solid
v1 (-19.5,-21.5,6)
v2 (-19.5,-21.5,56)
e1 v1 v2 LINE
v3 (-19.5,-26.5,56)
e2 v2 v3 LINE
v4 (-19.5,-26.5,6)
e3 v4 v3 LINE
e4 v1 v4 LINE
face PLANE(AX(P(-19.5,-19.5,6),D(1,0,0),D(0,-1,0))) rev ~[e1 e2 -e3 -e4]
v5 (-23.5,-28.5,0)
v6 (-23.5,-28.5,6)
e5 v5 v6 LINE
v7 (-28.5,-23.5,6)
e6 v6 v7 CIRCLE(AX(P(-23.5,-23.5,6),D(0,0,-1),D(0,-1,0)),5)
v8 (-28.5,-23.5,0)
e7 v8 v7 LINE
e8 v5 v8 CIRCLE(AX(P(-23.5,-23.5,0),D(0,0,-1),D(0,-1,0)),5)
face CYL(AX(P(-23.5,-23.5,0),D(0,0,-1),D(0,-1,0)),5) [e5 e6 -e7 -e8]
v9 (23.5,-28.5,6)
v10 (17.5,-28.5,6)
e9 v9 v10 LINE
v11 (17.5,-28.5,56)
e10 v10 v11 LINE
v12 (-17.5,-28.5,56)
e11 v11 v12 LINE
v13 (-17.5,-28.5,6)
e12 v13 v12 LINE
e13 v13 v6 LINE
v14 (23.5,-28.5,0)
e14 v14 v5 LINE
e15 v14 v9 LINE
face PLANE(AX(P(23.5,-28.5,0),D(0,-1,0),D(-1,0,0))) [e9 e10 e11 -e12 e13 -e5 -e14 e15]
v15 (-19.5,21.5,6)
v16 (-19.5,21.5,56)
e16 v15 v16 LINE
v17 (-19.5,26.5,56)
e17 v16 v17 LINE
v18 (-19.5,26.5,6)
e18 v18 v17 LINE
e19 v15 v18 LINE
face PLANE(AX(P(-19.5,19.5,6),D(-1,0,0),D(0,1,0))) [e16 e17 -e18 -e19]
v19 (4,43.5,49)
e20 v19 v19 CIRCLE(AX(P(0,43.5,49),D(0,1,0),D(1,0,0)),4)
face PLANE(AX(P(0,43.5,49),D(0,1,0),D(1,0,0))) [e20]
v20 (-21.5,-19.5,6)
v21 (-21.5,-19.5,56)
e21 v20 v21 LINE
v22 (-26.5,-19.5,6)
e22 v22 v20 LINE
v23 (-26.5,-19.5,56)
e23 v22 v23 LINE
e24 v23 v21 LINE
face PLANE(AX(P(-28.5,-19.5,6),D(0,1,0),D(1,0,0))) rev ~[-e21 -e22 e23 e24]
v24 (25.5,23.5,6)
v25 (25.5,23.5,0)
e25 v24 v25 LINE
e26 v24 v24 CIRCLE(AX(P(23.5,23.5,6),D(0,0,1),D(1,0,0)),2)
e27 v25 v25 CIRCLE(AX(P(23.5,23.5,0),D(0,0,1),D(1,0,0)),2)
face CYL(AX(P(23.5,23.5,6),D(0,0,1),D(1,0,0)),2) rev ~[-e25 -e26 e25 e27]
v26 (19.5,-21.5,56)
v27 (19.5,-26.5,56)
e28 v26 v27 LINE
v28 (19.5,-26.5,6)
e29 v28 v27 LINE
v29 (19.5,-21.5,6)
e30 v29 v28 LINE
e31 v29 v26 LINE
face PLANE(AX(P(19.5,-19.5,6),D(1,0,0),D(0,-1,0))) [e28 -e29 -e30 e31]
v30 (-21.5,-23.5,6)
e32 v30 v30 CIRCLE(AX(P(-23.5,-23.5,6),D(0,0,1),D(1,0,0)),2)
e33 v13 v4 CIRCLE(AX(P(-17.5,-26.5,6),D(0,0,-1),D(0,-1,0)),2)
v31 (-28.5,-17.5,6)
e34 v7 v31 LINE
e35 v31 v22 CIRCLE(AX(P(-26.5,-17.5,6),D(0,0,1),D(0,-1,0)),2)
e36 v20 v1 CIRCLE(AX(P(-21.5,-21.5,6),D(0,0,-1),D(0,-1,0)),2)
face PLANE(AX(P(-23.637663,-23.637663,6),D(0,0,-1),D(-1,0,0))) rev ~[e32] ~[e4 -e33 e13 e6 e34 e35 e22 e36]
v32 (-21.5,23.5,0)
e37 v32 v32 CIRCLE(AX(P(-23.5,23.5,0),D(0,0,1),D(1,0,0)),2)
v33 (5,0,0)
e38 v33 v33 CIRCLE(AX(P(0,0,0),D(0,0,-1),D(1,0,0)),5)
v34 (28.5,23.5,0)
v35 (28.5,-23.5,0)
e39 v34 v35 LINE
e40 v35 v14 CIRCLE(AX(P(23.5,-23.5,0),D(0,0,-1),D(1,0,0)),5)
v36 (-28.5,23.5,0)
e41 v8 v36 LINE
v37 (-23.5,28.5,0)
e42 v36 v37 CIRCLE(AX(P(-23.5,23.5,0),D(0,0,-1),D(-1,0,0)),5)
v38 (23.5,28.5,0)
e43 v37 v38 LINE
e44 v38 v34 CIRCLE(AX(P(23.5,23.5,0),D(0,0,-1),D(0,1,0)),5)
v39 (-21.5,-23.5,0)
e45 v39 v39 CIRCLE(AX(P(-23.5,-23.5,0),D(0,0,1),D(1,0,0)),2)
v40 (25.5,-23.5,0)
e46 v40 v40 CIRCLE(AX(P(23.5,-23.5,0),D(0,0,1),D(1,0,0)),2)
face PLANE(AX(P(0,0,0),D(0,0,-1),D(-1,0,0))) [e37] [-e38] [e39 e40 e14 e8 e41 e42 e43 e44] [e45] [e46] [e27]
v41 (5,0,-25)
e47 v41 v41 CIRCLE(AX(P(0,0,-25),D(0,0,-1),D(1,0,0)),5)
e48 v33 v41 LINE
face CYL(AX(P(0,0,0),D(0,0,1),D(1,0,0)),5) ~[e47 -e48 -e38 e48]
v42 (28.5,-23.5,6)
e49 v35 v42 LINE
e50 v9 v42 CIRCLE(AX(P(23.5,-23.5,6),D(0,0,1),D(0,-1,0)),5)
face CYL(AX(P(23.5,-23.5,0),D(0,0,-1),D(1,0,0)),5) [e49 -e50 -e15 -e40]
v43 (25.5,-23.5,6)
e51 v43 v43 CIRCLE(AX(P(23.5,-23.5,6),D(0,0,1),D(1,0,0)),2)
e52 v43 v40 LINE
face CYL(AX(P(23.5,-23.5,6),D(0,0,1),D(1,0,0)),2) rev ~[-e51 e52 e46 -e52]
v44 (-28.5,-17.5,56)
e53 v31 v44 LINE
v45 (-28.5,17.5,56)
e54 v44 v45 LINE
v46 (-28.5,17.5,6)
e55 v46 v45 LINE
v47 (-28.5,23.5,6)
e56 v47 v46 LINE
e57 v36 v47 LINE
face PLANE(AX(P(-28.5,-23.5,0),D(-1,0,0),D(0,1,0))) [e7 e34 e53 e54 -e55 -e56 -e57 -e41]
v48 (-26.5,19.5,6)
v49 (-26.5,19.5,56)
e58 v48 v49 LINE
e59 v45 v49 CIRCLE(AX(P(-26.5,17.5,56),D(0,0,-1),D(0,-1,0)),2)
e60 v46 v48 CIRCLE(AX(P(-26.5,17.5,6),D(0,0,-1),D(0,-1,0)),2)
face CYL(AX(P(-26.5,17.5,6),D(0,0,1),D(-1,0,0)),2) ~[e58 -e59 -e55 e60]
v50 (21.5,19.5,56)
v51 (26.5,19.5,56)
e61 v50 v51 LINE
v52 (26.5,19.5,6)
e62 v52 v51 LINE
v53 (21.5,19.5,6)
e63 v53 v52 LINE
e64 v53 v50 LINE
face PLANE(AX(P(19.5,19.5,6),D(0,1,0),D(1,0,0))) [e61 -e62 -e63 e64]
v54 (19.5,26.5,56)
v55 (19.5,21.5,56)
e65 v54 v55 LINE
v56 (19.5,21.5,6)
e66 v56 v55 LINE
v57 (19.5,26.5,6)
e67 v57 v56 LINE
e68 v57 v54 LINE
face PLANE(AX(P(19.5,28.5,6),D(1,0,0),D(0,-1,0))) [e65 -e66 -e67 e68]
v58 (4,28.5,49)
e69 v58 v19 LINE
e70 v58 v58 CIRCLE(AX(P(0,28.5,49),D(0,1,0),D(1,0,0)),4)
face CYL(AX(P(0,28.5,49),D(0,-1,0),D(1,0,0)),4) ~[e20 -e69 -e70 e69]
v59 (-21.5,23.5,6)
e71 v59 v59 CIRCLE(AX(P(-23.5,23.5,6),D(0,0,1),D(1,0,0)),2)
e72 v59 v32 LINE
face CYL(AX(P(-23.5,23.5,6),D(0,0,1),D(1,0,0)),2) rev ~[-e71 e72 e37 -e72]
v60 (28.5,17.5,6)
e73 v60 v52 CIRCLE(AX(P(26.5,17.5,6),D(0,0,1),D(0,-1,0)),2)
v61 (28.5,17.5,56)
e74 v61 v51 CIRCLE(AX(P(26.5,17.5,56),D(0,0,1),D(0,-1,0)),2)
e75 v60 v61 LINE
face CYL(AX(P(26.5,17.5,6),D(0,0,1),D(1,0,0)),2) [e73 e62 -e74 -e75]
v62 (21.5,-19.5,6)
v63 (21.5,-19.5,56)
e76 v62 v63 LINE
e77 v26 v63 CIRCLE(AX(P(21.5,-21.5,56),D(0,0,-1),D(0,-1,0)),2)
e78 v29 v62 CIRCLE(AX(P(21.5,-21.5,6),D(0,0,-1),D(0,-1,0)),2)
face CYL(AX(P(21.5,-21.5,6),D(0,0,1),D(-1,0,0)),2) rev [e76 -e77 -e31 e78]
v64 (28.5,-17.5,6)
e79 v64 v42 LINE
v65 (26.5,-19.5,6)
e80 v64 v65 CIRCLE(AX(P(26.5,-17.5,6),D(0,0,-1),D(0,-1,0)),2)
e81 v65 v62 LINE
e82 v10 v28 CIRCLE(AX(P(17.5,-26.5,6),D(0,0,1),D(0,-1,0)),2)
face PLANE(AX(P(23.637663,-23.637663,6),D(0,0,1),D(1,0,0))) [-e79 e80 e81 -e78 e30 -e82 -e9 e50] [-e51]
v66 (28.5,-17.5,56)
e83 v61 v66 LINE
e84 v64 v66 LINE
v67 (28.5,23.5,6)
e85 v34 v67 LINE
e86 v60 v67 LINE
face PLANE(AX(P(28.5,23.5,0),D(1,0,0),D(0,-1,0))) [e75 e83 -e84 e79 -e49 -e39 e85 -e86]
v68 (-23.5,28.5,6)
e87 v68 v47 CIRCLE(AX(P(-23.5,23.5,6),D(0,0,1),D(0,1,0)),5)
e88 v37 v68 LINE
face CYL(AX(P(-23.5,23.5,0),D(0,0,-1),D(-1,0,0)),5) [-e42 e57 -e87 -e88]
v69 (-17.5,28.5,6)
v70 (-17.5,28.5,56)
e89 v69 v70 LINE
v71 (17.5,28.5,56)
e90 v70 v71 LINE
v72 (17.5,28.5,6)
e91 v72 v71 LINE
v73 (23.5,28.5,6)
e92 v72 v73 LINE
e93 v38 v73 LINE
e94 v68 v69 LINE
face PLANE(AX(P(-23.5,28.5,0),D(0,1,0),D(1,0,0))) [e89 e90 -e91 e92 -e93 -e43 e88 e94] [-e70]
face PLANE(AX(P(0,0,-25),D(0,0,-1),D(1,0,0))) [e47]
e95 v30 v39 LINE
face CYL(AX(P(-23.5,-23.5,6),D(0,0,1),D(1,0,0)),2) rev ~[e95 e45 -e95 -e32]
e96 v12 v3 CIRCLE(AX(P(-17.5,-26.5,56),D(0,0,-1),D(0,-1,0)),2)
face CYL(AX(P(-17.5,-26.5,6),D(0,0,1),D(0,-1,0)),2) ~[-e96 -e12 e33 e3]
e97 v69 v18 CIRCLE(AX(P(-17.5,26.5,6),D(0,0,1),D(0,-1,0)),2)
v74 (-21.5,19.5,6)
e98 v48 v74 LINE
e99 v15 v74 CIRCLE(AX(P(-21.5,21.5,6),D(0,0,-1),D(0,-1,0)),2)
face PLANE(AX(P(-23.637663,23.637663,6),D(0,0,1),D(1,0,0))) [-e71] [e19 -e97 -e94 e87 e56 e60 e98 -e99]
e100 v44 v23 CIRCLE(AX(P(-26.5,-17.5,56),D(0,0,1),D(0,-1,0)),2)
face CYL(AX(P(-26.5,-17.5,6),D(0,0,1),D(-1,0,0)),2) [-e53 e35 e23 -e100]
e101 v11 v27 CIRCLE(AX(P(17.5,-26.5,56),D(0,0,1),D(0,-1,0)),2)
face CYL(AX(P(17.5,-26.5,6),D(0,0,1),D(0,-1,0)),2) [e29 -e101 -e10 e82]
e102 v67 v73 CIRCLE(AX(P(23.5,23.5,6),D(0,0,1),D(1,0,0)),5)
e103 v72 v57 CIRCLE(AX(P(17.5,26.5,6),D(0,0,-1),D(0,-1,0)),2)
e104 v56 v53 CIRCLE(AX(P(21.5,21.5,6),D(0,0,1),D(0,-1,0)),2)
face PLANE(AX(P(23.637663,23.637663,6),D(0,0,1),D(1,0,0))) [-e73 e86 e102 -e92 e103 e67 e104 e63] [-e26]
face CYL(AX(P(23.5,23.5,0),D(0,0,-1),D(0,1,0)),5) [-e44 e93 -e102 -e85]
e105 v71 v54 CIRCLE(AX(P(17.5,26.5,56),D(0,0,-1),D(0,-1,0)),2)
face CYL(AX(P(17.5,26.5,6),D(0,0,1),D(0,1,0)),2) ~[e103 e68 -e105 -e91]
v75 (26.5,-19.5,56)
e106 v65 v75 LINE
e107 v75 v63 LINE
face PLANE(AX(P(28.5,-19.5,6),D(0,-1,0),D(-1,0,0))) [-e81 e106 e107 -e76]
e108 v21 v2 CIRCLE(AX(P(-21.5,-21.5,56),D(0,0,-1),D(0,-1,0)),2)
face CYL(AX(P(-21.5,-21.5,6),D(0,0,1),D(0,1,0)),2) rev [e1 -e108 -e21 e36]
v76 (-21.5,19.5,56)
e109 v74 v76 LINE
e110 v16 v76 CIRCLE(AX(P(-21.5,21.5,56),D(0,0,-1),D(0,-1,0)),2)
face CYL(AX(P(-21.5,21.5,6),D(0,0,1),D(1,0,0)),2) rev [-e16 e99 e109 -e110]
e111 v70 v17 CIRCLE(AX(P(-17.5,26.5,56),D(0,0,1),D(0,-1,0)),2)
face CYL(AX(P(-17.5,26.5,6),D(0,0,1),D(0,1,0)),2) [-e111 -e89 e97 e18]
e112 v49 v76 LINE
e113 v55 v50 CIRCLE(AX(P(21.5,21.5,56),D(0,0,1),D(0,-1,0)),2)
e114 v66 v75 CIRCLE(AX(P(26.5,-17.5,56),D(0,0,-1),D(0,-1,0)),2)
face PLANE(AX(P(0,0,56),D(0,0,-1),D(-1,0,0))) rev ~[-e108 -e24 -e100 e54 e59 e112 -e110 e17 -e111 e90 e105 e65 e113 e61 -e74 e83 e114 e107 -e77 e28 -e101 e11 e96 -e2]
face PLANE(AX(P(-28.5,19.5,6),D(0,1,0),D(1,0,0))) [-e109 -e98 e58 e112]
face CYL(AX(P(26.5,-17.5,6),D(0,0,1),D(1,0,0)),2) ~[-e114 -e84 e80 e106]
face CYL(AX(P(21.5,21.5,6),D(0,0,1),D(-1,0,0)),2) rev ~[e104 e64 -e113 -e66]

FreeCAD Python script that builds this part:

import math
import FreeCAD as App
import Part
import Sketcher
from FreeCAD import Vector


def edges_at(feature, points):
    """Names of the edges that pass closest to the given points."""
    edges = feature.Shape.Edges
    near = lambda p: min(range(len(edges)), key=lambda i: edges[i].distToShape(Part.Vertex(*p))[0])
    return sorted({f"Edge{near(p) + 1}" for p in points})

doc = App.newDocument("Part")
body = doc.addObject("PartDesign::Body", "Body")

# Sketch on XY plane
sketch1 = body.newObject("Sketcher::SketchObject", "Sketch")
sketch1.AttachmentSupport = (doc.getObject("XY_Plane"), [""])
sketch1.MapMode = "FlatFace"
sketch1.addGeometry(Part.LineSegment(Vector(24, 28, 0), Vector(-24, 28, 0)), False)
sketch1.addGeometry(Part.ArcOfCircle(Part.Circle(Vector(-24, 24, 0), Vector(0, 0, 1), 5), math.radians(90), math.radians(180)), False)
sketch1.addGeometry(Part.LineSegment(Vector(-28, 24, 0), Vector(-28, -24, 0)), False)
sketch1.addGeometry(Part.ArcOfCircle(Part.Circle(Vector(-24, -24, 0), Vector(0, 0, 1), 5), math.radians(180), math.radians(270)), False)
sketch1.addGeometry(Part.LineSegment(Vector(-24, -28, 0), Vector(24, -28, 0)), False)
sketch1.addGeometry(Part.ArcOfCircle(Part.Circle(Vector(24, -24, 0), Vector(0, 0, 1), 5), math.radians(-90), math.radians(0)), False)
sketch1.addGeometry(Part.LineSegment(Vector(28, -24, 0), Vector(28, 24, 0)), False)
sketch1.addGeometry(Part.ArcOfCircle(Part.Circle(Vector(24, 24, 0), Vector(0, 0, 1), 5), math.radians(0), math.radians(90)), False)
sketch1.addConstraint(Sketcher.Constraint("Tangent", 0, 2, 1, 1))
sketch1.addConstraint(Sketcher.Constraint("Tangent", 1, 2, 2, 1))
sketch1.addConstraint(Sketcher.Constraint("Tangent", 2, 2, 3, 1))
sketch1.addConstraint(Sketcher.Constraint("Tangent", 3, 2, 4, 1))
sketch1.addConstraint(Sketcher.Constraint("Tangent", 4, 2, 5, 1))
sketch1.addConstraint(Sketcher.Constraint("Tangent", 5, 2, 6, 1))
sketch1.addConstraint(Sketcher.Constraint("Tangent", 6, 2, 7, 1))
sketch1.addConstraint(Sketcher.Constraint("Tangent", 7, 2, 0, 1))
sketch1.addConstraint(Sketcher.Constraint("Horizontal", 0))
sketch1.addConstraint(Sketcher.Constraint("Vertical", 2))
sketch1.addConstraint(Sketcher.Constraint("Horizontal", 4))
sketch1.addConstraint(Sketcher.Constraint("Vertical", 6))
sketch1.addConstraint(Sketcher.Constraint("Equal", 1, 3))
sketch1.addConstraint(Sketcher.Constraint("Equal", 3, 5))
sketch1.addConstraint(Sketcher.Constraint("Equal", 5, 7))
sketch1.addConstraint(Sketcher.Constraint("Symmetric", 1, 3, 5, 3, -1, 1))
sketch1.addConstraint(Sketcher.Constraint("Equal", 4, 2))
sketch1.addConstraint(Sketcher.Constraint("Radius", 1, 5.0))
sketch1.addConstraint(Sketcher.Constraint("DistanceX", 0, 2, 0, 1, 47.0))
pad1 = body.newObject("PartDesign::Pad", "Pad")
pad1.Profile = sketch1
pad1.Length = 56

# Sketch on XY plane
sketch2 = body.newObject("Sketcher::SketchObject", "Sketch001")
sketch2.AttachmentSupport = (doc.getObject("XY_Plane"), [""])
sketch2.MapMode = "FlatFace"
sketch2.AttachmentOffset = App.Placement(Vector(0, 0, 6), App.Rotation())
sketch2.addGeometry(Part.LineSegment(Vector(-19.5, -19.5, 0), Vector(-28.5, -19.5, 0)), False)
sketch2.addGeometry(Part.LineSegment(Vector(-28.5, -19.5, 0), Vector(-28.5, -23.5, 0)), False)
sketch2.addGeometry(Part.ArcOfCircle(Part.Circle(Vector(-23.5, -23.5, 0), Vector(0, 0, 1), 5), math.radians(180), math.radians(270)), False)
sketch2.addGeometry(Part.LineSegment(Vector(-23.5, -28.5, 0), Vector(-19.5, -28.5, 0)), False)
sketch2.addGeometry(Part.LineSegment(Vector(-19.5, -28.5, 0), Vector(-19.5, -19.5, 0)), False)
sketch2.addGeometry(Part.LineSegment(Vector(-28.5, 19.5, 0), Vector(-19.5, 19.5, 0)), False)
sketch2.addGeometry(Part.LineSegment(Vector(-19.5, 19.5, 0), Vector(-19.5, 28.5, 0)), False)
sketch2.addGeometry(Part.LineSegment(Vector(-19.5, 28.5, 0), Vector(-23.5, 28.5, 0)), False)
sketch2.addGeometry(Part.ArcOfCircle(Part.Circle(Vector(-23.5, 23.5, 0), Vector(0, 0, 1), 5), math.radians(90), math.radians(180)), False)
sketch2.addGeometry(Part.LineSegment(Vector(-28.5, 23.5, 0), Vector(-28.5, 19.5, 0)), False)
sketch2.addGeometry(Part.LineSegment(Vector(23.5, 28.5, 0), Vector(19.5, 28.5, 0)), False)
sketch2.addGeometry(Part.LineSegment(Vector(19.5, 28.5, 0), Vector(19.5, 19.5, 0)), False)
sketch2.addGeometry(Part.LineSegment(Vector(19.5, 19.5, 0), Vector(28.5, 19.5, 0)), False)
sketch2.addGeometry(Part.LineSegment(Vector(28.5, 19.5, 0), Vector(28.5, 23.5, 0)), False)
sketch2.addGeometry(Part.ArcOfCircle(Part.Circle(Vector(23.5, 23.5, 0), Vector(0, 0, 1), 5), math.radians(0), math.radians(90)), False)
sketch2.addGeometry(Part.LineSegment(Vector(28.5, -23.5, 0), Vector(28.5, -19.5, 0)), False)
sketch2.addGeometry(Part.LineSegment(Vector(28.5, -19.5, 0), Vector(19.5, -19.5, 0)), False)
sketch2.addGeometry(Part.LineSegment(Vector(19.5, -19.5, 0), Vector(19.5, -28.5, 0)), False)
sketch2.addGeometry(Part.LineSegment(Vector(19.5, -28.5, 0), Vector(23.5, -28.5, 0)), False)
sketch2.addGeometry(Part.ArcOfCircle(Part.Circle(Vector(23.5, -23.5, 0), Vector(0, 0, 1), 5), math.radians(-90), math.radians(0)), False)
sketch2.addConstraint(Sketcher.Constraint("Coincident", 0, 2, 1, 1))
sketch2.addConstraint(Sketcher.Constraint("Tangent", 1, 2, 2, 1))
sketch2.addConstraint(Sketcher.Constraint("Tangent", 2, 2, 3, 1))
sketch2.addConstraint(Sketcher.Constraint("Coincident", 3, 2, 4, 1))
sketch2.addConstraint(Sketcher.Constraint("Coincident", 4, 2, 0, 1))
sketch2.addConstraint(Sketcher.Constraint("Coincident", 5, 2, 6, 1))
sketch2.addConstraint(Sketcher.Constraint("Coincident", 6, 2, 7, 1))
sketch2.addConstraint(Sketcher.Constraint("Tangent", 7, 2, 8, 1))
sketch2.addConstraint(Sketcher.Constraint("Tangent", 8, 2, 9, 1))
sketch2.addConstraint(Sketcher.Constraint("Coincident", 9, 2, 5, 1))
sketch2.addConstraint(Sketcher.Constraint("Coincident", 10, 2, 11, 1))
sketch2.addConstraint(Sketcher.Constraint("Coincident", 11, 2, 12, 1))
sketch2.addConstraint(Sketcher.Constraint("Coincident", 12, 2, 13, 1))
sketch2.addConstraint(Sketcher.Constraint("Tangent", 13, 2, 14, 1))
sketch2.addConstraint(Sketcher.Constraint("Tangent", 14, 2, 10, 1))
sketch2.addConstraint(Sketcher.Constraint("Coincident", 15, 2, 16, 1))
sketch2.addConstraint(Sketcher.Constraint("Coincident", 16, 2, 17, 1))
sketch2.addConstraint(Sketcher.Constraint("Coincident", 17, 2, 18, 1))
sketch2.addConstraint(Sketcher.Constraint("Tangent", 18, 2, 19, 1))
sketch2.addConstraint(Sketcher.Constraint("Tangent", 19, 2, 15, 1))
sketch2.addConstraint(Sketcher.Constraint("Horizontal", 0))
sketch2.addConstraint(Sketcher.Constraint("Vertical", 1))
sketch2.addConstraint(Sketcher.Constraint("Horizontal", 3))
sketch2.addConstraint(Sketcher.Constraint("Vertical", 4))
sketch2.addConstraint(Sketcher.Constraint("Horizontal", 5))
sketch2.addConstraint(Sketcher.Constraint("Vertical", 6))
sketch2.addConstraint(Sketcher.Constraint("Horizontal", 7))
sketch2.addConstraint(Sketcher.Constraint("Vertical", 9))
sketch2.addConstraint(Sketcher.Constraint("Horizontal", 10))
sketch2.addConstraint(Sketcher.Constraint("Vertical", 11))
sketch2.addConstraint(Sketcher.Constraint("Horizontal", 12))
sketch2.addConstraint(Sketcher.Constraint("Vertical", 13))
sketch2.addConstraint(Sketcher.Constraint("Vertical", 15))
sketch2.addConstraint(Sketcher.Constraint("Horizontal", 16))
sketch2.addConstraint(Sketcher.Constraint("Vertical", 17))
sketch2.addConstraint(Sketcher.Constraint("Horizontal", 18))
sketch2.addConstraint(Sketcher.Constraint("Equal", 2, 8))
sketch2.addConstraint(Sketcher.Constraint("Equal", 8, 14))
sketch2.addConstraint(Sketcher.Constraint("Equal", 14, 19))
sketch2.addConstraint(Sketcher.Constraint("Symmetric", 2, 3, 14, 3, -1, 1))
sketch2.addConstraint(Sketcher.Constraint("Symmetric", 8, 3, 19, 3, -1, 1))
sketch2.addConstraint(Sketcher.Constraint("Symmetric", 4, 2, 11, 2, -1, 1))
sketch2.addConstraint(Sketcher.Constraint("Symmetric", 5, 2, 16, 2, -1, 1))
sketch2.addConstraint(Sketcher.Constraint("Symmetric", 8, 3, 14, 3, -2))
sketch2.addConstraint(Sketcher.Constraint("Symmetric", 5, 2, 11, 2, -2))
sketch2.addConstraint(Sketcher.Constraint("Equal", 18, 1))
sketch2.addConstraint(Sketcher.Constraint("Radius", 2, 5.0))
sketch2.addConstraint(Sketcher.Constraint("DistanceX", 0, 2, 0, 1, 9.0))
sketch2.addConstraint(Sketcher.Constraint("DistanceY", 2, 3, 8, 3, 47.0))
sketch2.addConstraint(Sketcher.Constraint("DistanceX", 8, 3, 14, 3, 47.0))
pocket1 = body.newObject("PartDesign::Pocket", "Pocket")
pocket1.Profile = sketch2
pocket1.Length = 50
pocket1.Reversed = True
doc.recompute()

fillet = body.newObject("PartDesign::Fillet", "Fillet")
fillet.Base = (pocket1, edges_at(pocket1, [
    (19.5, -28.5, 31),
    (19.5, -19.5, 31),
    (28.5, -19.5, 31),
    (-19.5, 28.5, 31),
    (-19.5, 19.5, 31),
    (-28.5, 19.5, 31),
    (28.5, 19.5, 31),
    (19.5, 19.5, 31),
    (19.5, 28.5, 31),
    (-28.5, -19.5, 31),
    (-19.5, -19.5, 31),
    (-19.5, -28.5, 31),
]))
fillet.Radius = 2

# Sketch on XY plane
sketch3 = body.newObject("Sketcher::SketchObject", "Sketch002")
sketch3.AttachmentSupport = (doc.getObject("XY_Plane"), [""])
sketch3.MapMode = "FlatFace"
sketch3.AttachmentOffset = App.Placement(Vector(0, 0, 6), App.Rotation())
sketch3.addGeometry(Part.Circle(Vector(-23.5, -23.5, 0), Vector(0, 0, 1), 2), False)
sketch3.addGeometry(Part.Circle(Vector(-23.5, 23.5, 0), Vector(0, 0, 1), 2), False)
sketch3.addGeometry(Part.Circle(Vector(23.5, 23.5, 0), Vector(0, 0, 1), 2), False)
sketch3.addGeometry(Part.Circle(Vector(23.5, -23.5, 0), Vector(0, 0, 1), 2), False)
sketch3.addConstraint(Sketcher.Constraint("Equal", 0, 1))
sketch3.addConstraint(Sketcher.Constraint("Equal", 1, 2))
sketch3.addConstraint(Sketcher.Constraint("Equal", 2, 3))
sketch3.addConstraint(Sketcher.Constraint("Symmetric", 0, 3, 2, 3, -1, 1))
sketch3.addConstraint(Sketcher.Constraint("Symmetric", 1, 3, 3, 3, -1, 1))
sketch3.addConstraint(Sketcher.Constraint("Symmetric", 1, 3, 2, 3, -2))
sketch3.addConstraint(Sketcher.Constraint("Diameter", 0, 4.0))
sketch3.addConstraint(Sketcher.Constraint("DistanceY", 0, 3, 1, 3, 47.0))
sketch3.addConstraint(Sketcher.Constraint("DistanceX", 1, 3, 2, 3, 47.0))
pocket2 = body.newObject("PartDesign::Pocket", "Pocket001")
pocket2.Profile = sketch3
pocket2.Type = "ThroughAll"

# Sketch on XY plane
sketch4 = body.newObject("Sketcher::SketchObject", "Sketch003")
sketch4.AttachmentSupport = (doc.getObject("XY_Plane"), [""])
sketch4.MapMode = "FlatFace"
sketch4.addGeometry(Part.Circle(Vector(0, 0, 0), Vector(0, 0, 1), 5), False)
sketch4.addConstraint(Sketcher.Constraint("Coincident", 0, 3, -1, 1))
sketch4.addConstraint(Sketcher.Constraint("Diameter", 0, 10.0))
pad2 = body.newObject("PartDesign::Pad", "Pad001")
pad2.Profile = sketch4
pad2.Length = 25
pad2.Reversed = True

# Sketch on XZ plane
sketch5 = body.newObject("Sketcher::SketchObject", "Sketch004")
sketch5.AttachmentSupport = (doc.getObject("XZ_Plane"), [""])
sketch5.MapMode = "FlatFace"
sketch5.AttachmentOffset = App.Placement(Vector(0, 0, -28.5), App.Rotation())
sketch5.addGeometry(Part.Circle(Vector(0, 49, 0), Vector(0, 0, 1), 4), False)
sketch5.addConstraint(Sketcher.Constraint("PointOnObject", 0, 3, -2))
sketch5.addConstraint(Sketcher.Constraint("Diameter", 0, 8.0))
sketch5.addConstraint(Sketcher.Constraint("DistanceY", -1, 1, 0, 3, 49.0))
pad3 = body.newObject("PartDesign::Pad", "Pad002")
pad3.Profile = sketch5
pad3.Length = 15
pad3.Reversed = True

doc.recompute()
